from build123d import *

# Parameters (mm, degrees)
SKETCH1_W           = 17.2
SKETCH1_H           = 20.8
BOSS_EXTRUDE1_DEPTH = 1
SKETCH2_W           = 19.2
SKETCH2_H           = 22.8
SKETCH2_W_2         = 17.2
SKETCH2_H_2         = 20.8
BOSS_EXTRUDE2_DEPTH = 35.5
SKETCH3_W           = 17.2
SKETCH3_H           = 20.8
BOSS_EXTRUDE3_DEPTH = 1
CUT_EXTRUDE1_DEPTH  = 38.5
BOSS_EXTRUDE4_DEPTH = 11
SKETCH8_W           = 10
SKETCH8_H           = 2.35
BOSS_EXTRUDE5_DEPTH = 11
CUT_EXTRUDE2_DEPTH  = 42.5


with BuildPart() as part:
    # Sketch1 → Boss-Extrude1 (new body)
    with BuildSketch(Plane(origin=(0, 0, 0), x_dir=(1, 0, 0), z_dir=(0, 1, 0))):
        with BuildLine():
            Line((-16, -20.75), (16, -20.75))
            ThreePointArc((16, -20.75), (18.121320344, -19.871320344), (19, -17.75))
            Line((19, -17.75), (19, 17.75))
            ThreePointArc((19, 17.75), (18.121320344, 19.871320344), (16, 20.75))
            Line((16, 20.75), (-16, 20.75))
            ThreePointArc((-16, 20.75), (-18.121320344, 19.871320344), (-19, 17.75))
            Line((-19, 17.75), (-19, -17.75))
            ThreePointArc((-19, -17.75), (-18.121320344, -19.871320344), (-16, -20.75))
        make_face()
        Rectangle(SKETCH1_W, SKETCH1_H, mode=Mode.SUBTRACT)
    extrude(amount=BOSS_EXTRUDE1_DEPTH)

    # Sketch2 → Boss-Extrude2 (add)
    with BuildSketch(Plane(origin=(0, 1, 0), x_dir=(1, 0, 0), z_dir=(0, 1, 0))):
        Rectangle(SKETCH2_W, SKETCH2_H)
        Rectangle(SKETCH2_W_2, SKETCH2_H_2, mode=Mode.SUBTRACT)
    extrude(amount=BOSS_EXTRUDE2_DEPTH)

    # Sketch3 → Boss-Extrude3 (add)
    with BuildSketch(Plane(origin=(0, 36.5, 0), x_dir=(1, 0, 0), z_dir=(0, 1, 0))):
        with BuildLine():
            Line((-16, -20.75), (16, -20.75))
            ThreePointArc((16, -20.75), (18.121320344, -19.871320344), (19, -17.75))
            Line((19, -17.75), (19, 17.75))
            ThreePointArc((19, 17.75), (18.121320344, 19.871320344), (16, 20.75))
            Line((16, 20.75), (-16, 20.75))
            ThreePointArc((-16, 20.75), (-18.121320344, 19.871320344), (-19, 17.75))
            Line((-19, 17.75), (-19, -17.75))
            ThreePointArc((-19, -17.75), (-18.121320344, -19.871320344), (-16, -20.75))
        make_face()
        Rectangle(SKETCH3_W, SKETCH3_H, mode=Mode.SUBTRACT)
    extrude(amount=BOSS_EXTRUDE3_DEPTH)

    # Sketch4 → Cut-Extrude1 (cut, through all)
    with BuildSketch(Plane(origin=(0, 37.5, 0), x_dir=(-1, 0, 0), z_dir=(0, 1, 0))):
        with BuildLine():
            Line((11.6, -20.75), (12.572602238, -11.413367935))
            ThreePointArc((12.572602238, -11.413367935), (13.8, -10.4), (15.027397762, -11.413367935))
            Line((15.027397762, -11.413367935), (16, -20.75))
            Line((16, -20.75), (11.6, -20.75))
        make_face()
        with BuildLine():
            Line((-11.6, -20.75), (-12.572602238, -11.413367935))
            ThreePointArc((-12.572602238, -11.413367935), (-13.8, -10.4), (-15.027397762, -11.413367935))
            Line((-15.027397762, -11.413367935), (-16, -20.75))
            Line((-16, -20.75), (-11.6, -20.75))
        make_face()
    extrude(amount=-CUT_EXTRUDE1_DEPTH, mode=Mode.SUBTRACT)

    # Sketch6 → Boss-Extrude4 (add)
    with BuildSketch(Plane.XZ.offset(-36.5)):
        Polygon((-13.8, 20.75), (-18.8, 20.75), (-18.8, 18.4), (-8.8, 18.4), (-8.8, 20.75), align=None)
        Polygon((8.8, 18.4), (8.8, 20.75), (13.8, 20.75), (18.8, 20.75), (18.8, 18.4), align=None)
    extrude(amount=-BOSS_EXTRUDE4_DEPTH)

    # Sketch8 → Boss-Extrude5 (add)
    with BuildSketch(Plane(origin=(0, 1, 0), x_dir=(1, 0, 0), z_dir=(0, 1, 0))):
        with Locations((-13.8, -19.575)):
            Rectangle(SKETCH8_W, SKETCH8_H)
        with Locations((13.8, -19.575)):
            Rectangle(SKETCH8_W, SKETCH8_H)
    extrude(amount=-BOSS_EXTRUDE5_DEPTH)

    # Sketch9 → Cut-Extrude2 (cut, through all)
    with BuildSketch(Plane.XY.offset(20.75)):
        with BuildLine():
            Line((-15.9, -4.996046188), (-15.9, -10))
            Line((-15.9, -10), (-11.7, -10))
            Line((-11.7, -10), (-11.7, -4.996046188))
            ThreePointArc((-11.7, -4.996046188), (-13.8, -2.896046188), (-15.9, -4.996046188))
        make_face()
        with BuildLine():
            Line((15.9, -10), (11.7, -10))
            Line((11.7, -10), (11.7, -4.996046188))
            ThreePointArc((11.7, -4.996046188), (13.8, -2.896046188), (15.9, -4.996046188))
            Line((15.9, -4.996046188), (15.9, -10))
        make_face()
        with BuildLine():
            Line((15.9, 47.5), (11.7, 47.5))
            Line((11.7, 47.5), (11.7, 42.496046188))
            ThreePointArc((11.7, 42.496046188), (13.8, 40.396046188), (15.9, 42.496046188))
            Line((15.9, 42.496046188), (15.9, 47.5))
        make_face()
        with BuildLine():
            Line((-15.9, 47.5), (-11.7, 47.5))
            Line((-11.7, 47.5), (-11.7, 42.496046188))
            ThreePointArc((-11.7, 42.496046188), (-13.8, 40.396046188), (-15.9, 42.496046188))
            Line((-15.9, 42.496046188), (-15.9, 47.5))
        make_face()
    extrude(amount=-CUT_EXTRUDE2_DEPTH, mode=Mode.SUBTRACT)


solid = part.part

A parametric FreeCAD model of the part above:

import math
import FreeCAD as App
import Part
import Sketcher
Q = App.Units.Quantity


def add_polygon(sketch, points):
    """Adds a closed chain of lines whose ends are joined by coincident constraints."""
    first, n = sketch.GeometryCount, len(points)
    for a, b in zip(points, points[1:] + points[:1]):
        sketch.addGeometry(Part.LineSegment(App.Vector(*a, 0), App.Vector(*b, 0)), False)
    for i in range(n):
        sketch.addConstraint(Sketcher.Constraint("Coincident", first + i, 2, first + (i + 1) % n, 1))

doc = App.newDocument("Part")
body = doc.addObject("PartDesign::Body", "Body")

# Sketch on XZ plane
sketch1 = body.newObject("Sketcher::SketchObject", "Sketch")
sketch1.AttachmentSupport = (doc.getObject("XZ_Plane"), [""])
sketch1.MapMode = "FlatFace"
sketch1.addGeometry(Part.LineSegment(App.Vector(-16, 20.8, 0), App.Vector(16, 20.8, 0)), False)  # 0
sketch1.addGeometry(Part.ArcOfCircle(Part.Circle(App.Vector(16, 17.8, 0), App.Vector(0, 0, 1), 3), math.radians(0), math.radians(90)), False)  # 1
sketch1.addGeometry(Part.LineSegment(App.Vector(19, 17.8, 0), App.Vector(19, -17.8, 0)), False)  # 2
sketch1.addGeometry(Part.ArcOfCircle(Part.Circle(App.Vector(16, -17.8, 0), App.Vector(0, 0, 1), 3), math.radians(-90), math.radians(0)), False)  # 3
sketch1.addGeometry(Part.LineSegment(App.Vector(16, -20.8, 0), App.Vector(-16, -20.8, 0)), False)  # 4
sketch1.addGeometry(Part.ArcOfCircle(Part.Circle(App.Vector(-16, -17.8, 0), App.Vector(0, 0, 1), 3), math.radians(180), math.radians(270)), False)  # 5
sketch1.addGeometry(Part.LineSegment(App.Vector(-19, -17.8, 0), App.Vector(-19, 17.8, 0)), False)  # 6
sketch1.addGeometry(Part.ArcOfCircle(Part.Circle(App.Vector(-16, 17.8, 0), App.Vector(0, 0, 1), 3), math.radians(90), math.radians(180)), False)  # 7
add_polygon(sketch1, [(8.6, 10.4), (-8.6, 10.4), (-8.6, -10.4), (8.6, -10.4)])  # lines 8-11
sketch1.addConstraint([
    Sketcher.Constraint("Tangent", 0, 2, 1, 2),
    Sketcher.Constraint("Tangent", 1, 1, 2, 1),
    Sketcher.Constraint("Tangent", 2, 2, 3, 2),
    Sketcher.Constraint("Tangent", 3, 1, 4, 1),
    Sketcher.Constraint("Tangent", 4, 2, 5, 2),
    Sketcher.Constraint("Tangent", 5, 1, 6, 1),
    Sketcher.Constraint("Tangent", 6, 2, 7, 2),
    Sketcher.Constraint("Tangent", 7, 1, 0, 1),
    Sketcher.Constraint("Horizontal", 0),
    Sketcher.Constraint("Vertical", 2),
    Sketcher.Constraint("Horizontal", 4),
    Sketcher.Constraint("Vertical", 6),
    Sketcher.Constraint("Horizontal", 8),
    Sketcher.Constraint("Vertical", 9),
    Sketcher.Constraint("Horizontal", 10),
    Sketcher.Constraint("Vertical", 11),
    Sketcher.Constraint("Equal", 1, 3),
    Sketcher.Constraint("Equal", 3, 5),
    Sketcher.Constraint("Equal", 5, 7),
    Sketcher.Constraint("Symmetric", 1, 3, 5, 3, -1, 1),
    Sketcher.Constraint("Symmetric", 8, 2, 10, 2, -1, 1),
    Sketcher.Constraint("Radius", 1, Q("3 mm")),
    Sketcher.Constraint("DistanceX", 0, 1, 0, 2, Q("32 mm")),
    Sketcher.Constraint("DistanceX", 8, 2, 8, 1, Q("17.2 mm")),
    Sketcher.Constraint("DistanceY", 2, 2, 2, 1, Q("35.5 mm")),
    Sketcher.Constraint("DistanceY", 9, 2, 9, 1, Q("20.8 mm")),
])
pad1 = body.newObject("PartDesign::Pad", "Pad")
pad1.Profile = sketch1
pad1.Length = 1
pad1.Reversed = True

# Sketch on XZ plane
sketch2 = body.newObject("Sketcher::SketchObject", "Sketch001")
sketch2.AttachmentSupport = (doc.getObject("XZ_Plane"), [""])
sketch2.MapMode = "FlatFace"
sketch2.AttachmentOffset = App.Placement(App.Vector(0, 0, -1), App.Rotation())
add_polygon(sketch2, [(-10, -11), (-10, 11), (10, 11), (10, -11)])  # lines 0-3
add_polygon(sketch2, [(9, 10), (-9, 10), (-9, -10), (9, -10)])  # lines 4-7
sketch2.addConstraint([
    Sketcher.Constraint("Vertical", 0),
    Sketcher.Constraint("Horizontal", 1),
    Sketcher.Constraint("Vertical", 2),
    Sketcher.Constraint("Horizontal", 3),
    Sketcher.Constraint("Horizontal", 4),
    Sketcher.Constraint("Vertical", 5),
    Sketcher.Constraint("Horizontal", 6),
    Sketcher.Constraint("Vertical", 7),
    Sketcher.Constraint("Symmetric", 0, 2, 2, 2, -1, 1),
    Sketcher.Constraint("Symmetric", 4, 2, 6, 2, -1, 1),
    Sketcher.Constraint("DistanceX", 1, 1, 1, 2, Q("19.2 mm")),
    Sketcher.Constraint("DistanceX", 4, 2, 4, 1, Q("17.2 mm")),
    Sketcher.Constraint("DistanceY", 0, 1, 0, 2, Q("22.8 mm")),
    Sketcher.Constraint("DistanceY", 5, 2, 5, 1, Q("20.8 mm")),
])
pad2 = body.newObject("PartDesign::Pad", "Pad001")
pad2.Profile = sketch2
pad2.Length = 35.5
pad2.Reversed = True

# Sketch on XZ plane
sketch3 = body.newObject("Sketcher::SketchObject", "Sketch002")
sketch3.AttachmentSupport = (doc.getObject("XZ_Plane"), [""])
sketch3.MapMode = "FlatFace"
sketch3.AttachmentOffset = App.Placement(App.Vector(0, 0, -36.5), App.Rotation())
sketch3.addGeometry(Part.LineSegment(App.Vector(-16, 20.8, 0), App.Vector(16, 20.8, 0)), False)  # 0
sketch3.addGeometry(Part.ArcOfCircle(Part.Circle(App.Vector(16, 17.8, 0), App.Vector(0, 0, 1), 3), math.radians(0), math.radians(90)), False)  # 1
sketch3.addGeometry(Part.LineSegment(App.Vector(19, 17.8, 0), App.Vector(19, -17.8, 0)), False)  # 2
sketch3.addGeometry(Part.ArcOfCircle(Part.Circle(App.Vector(16, -17.8, 0), App.Vector(0, 0, 1), 3), math.radians(-90), math.radians(0)), False)  # 3
sketch3.addGeometry(Part.LineSegment(App.Vector(16, -20.8, 0), App.Vector(-16, -20.8, 0)), False)  # 4
sketch3.addGeometry(Part.ArcOfCircle(Part.Circle(App.Vector(-16, -17.8, 0), App.Vector(0, 0, 1), 3), math.radians(180), math.radians(270)), False)  # 5
sketch3.addGeometry(Part.LineSegment(App.Vector(-19, -17.8, 0), App.Vector(-19, 17.8, 0)), False)  # 6
sketch3.addGeometry(Part.ArcOfCircle(Part.Circle(App.Vector(-16, 17.8, 0), App.Vector(0, 0, 1), 3), math.radians(90), math.radians(180)), False)  # 7
add_polygon(sketch3, [(8.6, 10.4), (-8.6, 10.4), (-8.6, -10.4), (8.6, -10.4)])  # lines 8-11
sketch3.addConstraint([
    Sketcher.Constraint("Tangent", 0, 2, 1, 2),
    Sketcher.Constraint("Tangent", 1, 1, 2, 1),
    Sketcher.Constraint("Tangent", 2, 2, 3, 2),
    Sketcher.Constraint("Tangent", 3, 1, 4, 1),
    Sketcher.Constraint("Tangent", 4, 2, 5, 2),
    Sketcher.Constraint("Tangent", 5, 1, 6, 1),
    Sketcher.Constraint("Tangent", 6, 2, 7, 2),
    Sketcher.Constraint("Tangent", 7, 1, 0, 1),
    Sketcher.Constraint("Horizontal", 0),
    Sketcher.Constraint("Vertical", 2),
    Sketcher.Constraint("Horizontal", 4),
    Sketcher.Constraint("Vertical", 6),
    Sketcher.Constraint("Horizontal", 8),
    Sketcher.Constraint("Vertical", 9),
    Sketcher.Constraint("Horizontal", 10),
    Sketcher.Constraint("Vertical", 11),
    Sketcher.Constraint("Equal", 1, 3),
    Sketcher.Constraint("Equal", 3, 5),
    Sketcher.Constraint("Equal", 5, 7),
    Sketcher.Constraint("Symmetric", 1, 3, 5, 3, -1, 1),
    Sketcher.Constraint("Symmetric", 8, 2, 10, 2, -1, 1),
    Sketcher.Constraint("Radius", 1, Q("3 mm")),
    Sketcher.Constraint("DistanceX", 0, 1, 0, 2, Q("32 mm")),
    Sketcher.Constraint("DistanceX", 8, 2, 8, 1, Q("17.2 mm")),
    Sketcher.Constraint("DistanceY", 2, 2, 2, 1, Q("35.5 mm")),
    Sketcher.Constraint("DistanceY", 9, 2, 9, 1, Q("20.8 mm")),
])
pad3 = body.newObject("PartDesign::Pad", "Pad002")
pad3.Profile = sketch3
pad3.Length = 1
pad3.Reversed = True

# Sketch on XZ plane
sketch4 = body.newObject("Sketcher::SketchObject", "Sketch003")
sketch4.AttachmentSupport = (doc.getObject("XZ_Plane"), [""])
sketch4.MapMode = "FlatFace"
sketch4.AttachmentOffset = App.Placement(App.Vector(0, 0, -37.5), App.Rotation())
sketch4.addGeometry([
    Part.LineSegment(App.Vector(-12.6, -11.4, 0), App.Vector(-11.6, -20.8, 0)),  # 0
    Part.LineSegment(App.Vector(-11.6, -20.8, 0), App.Vector(-16, -20.8, 0)),  # 1
    Part.LineSegment(App.Vector(-16, -20.8, 0), App.Vector(-15, -11.4, 0)),  # 2
    Part.ArcOfCircle(Part.Circle(App.Vector(-13.8, -11.7, 0), App.Vector(0, 0, 1), 1.2), math.radians(11), math.radians(169)),  # 3
    Part.LineSegment(App.Vector(11.6, -20.8, 0), App.Vector(12.6, -11.4, 0)),  # 4
    Part.ArcOfCircle(Part.Circle(App.Vector(13.8, -11.7, 0), App.Vector(0, 0, 1), 1.2), math.radians(11), math.radians(169)),  # 5
    Part.LineSegment(App.Vector(15, -11.4, 0), App.Vector(16, -20.8, 0)),  # 6
    Part.LineSegment(App.Vector(16, -20.8, 0), App.Vector(11.6, -20.8, 0)),  # 7
], False)
sketch4.addConstraint([
    Sketcher.Constraint("Coincident", 0, 2, 1, 1),
    Sketcher.Constraint("Coincident", 1, 2, 2, 1),
    Sketcher.Constraint("Coincident", 2, 2, 3, 2),
    Sketcher.Constraint("Coincident", 3, 1, 0, 1),
    Sketcher.Constraint("Coincident", 4, 2, 5, 2),
    Sketcher.Constraint("Coincident", 5, 1, 6, 1),
    Sketcher.Constraint("Coincident", 6, 2, 7, 1),
    Sketcher.Constraint("Coincident", 7, 2, 4, 1),
    Sketcher.Constraint("Horizontal", 1),
    Sketcher.Constraint("Horizontal", 7),
    Sketcher.Constraint("Equal", 3, 5),
    Sketcher.Constraint("Symmetric", 3, 3, 5, 3, -2),
    Sketcher.Constraint("Symmetric", 1, 2, 6, 2, -2),
    Sketcher.Constraint("Parallel", 2, 4),
    Sketcher.Constraint("Parallel", 0, 6),
    Sketcher.Constraint("Horizontal", 2, 2, 3, 1),
    Sketcher.Constraint("Horizontal", 3, 1, 4, 2),
    Sketcher.Constraint("Horizontal", 4, 2, 5, 1),
    Sketcher.Constraint("Radius", 3, Q("1.25 mm")),
    Sketcher.Constraint("DistanceX", 1, 2, 1, 1, Q("4.4 mm")),
    Sketcher.Constraint("DistanceX", 1, 2, -1, 1, Q("16 mm")),
    Sketcher.Constraint("DistanceY", 0, 2, 3, 3, Q("9.1 mm")),
    Sketcher.Constraint("DistanceY", 3, 3, -1, 1, Q("11.65 mm")),
    Sketcher.Constraint("Distance", 0, Q("9.387154 mm")),
])
pocket1 = body.newObject("PartDesign::Pocket", "Pocket")
pocket1.Profile = sketch4
pocket1.Type = "ThroughAll"
pocket1.Reversed = True

# Sketch on XZ plane
sketch5 = body.newObject("Sketcher::SketchObject", "Sketch004")
sketch5.AttachmentSupport = (doc.getObject("XZ_Plane"), [""])
sketch5.MapMode = "FlatFace"
sketch5.AttachmentOffset = App.Placement(App.Vector(0, 0, -36.5), App.Rotation())
add_polygon(sketch5, [(-18.8, 20.8), (-18.8, 18.4), (-8.8, 18.4), (-8.8, 20.8)])  # lines 0-3
add_polygon(sketch5, [(8.8, 20.8), (8.8, 18.4), (18.8, 18.4), (18.8, 20.8)])  # lines 4-7
sketch5.addConstraint([
    Sketcher.Constraint("Vertical", 0),
    Sketcher.Constraint("Horizontal", 1),
    Sketcher.Constraint("Vertical", 2),
    Sketcher.Constraint("Horizontal", 3),
    Sketcher.Constraint("Vertical", 4),
    Sketcher.Constraint("Horizontal", 5),
    Sketcher.Constraint("Vertical", 6),
    Sketcher.Constraint("Horizontal", 7),
    Sketcher.Constraint("Symmetric", 1, 2, 4, 2, -2),
    Sketcher.Constraint("Symmetric", 3, 2, 6, 2, -2),
    Sketcher.Constraint("DistanceX", 1, 1, 1, 2, Q("10 mm")),
    Sketcher.Constraint("DistanceY", 0, 2, 0, 1, Q("2.35 mm")),
    Sketcher.Constraint("DistanceX", 0, 2, -1, 1, Q("18.8 mm")),
    Sketcher.Constraint("DistanceY", -1, 1, 0, 2, Q("18.4 mm")),
])
pad4 = body.newObject("PartDesign::Pad", "Pad003")
pad4.Profile = sketch5
pad4.Length = 11
pad4.Reversed = True

# Sketch on XZ plane
sketch6 = body.newObject("Sketcher::SketchObject", "Sketch005")
sketch6.AttachmentSupport = (doc.getObject("XZ_Plane"), [""])
sketch6.MapMode = "FlatFace"
sketch6.AttachmentOffset = App.Placement(App.Vector(0, 0, -1), App.Rotation())
add_polygon(sketch6, [(-18.8, 18.4), (-18.8, 20.8), (-8.8, 20.8), (-8.8, 18.4)])  # lines 0-3
add_polygon(sketch6, [(8.8, 18.4), (8.8, 20.8), (18.8, 20.8), (18.8, 18.4)])  # lines 4-7
sketch6.addConstraint([
    Sketcher.Constraint("Vertical", 0),
    Sketcher.Constraint("Horizontal", 1),
    Sketcher.Constraint("Vertical", 2),
    Sketcher.Constraint("Horizontal", 3),
    Sketcher.Constraint("Vertical", 4),
    Sketcher.Constraint("Horizontal", 5),
    Sketcher.Constraint("Vertical", 6),
    Sketcher.Constraint("Horizontal", 7),
    Sketcher.Constraint("Symmetric", 1, 2, 4, 2, -2),
    Sketcher.Constraint("Symmetric", 3, 2, 6, 2, -2),
    Sketcher.Constraint("DistanceX", 1, 1, 1, 2, Q("10 mm")),
    Sketcher.Constraint("DistanceY", 0, 1, 0, 2, Q("2.35 mm")),
    Sketcher.Constraint("DistanceX", 0, 2, -1, 1, Q("18.8 mm")),
    Sketcher.Constraint("DistanceY", -1, 1, 2, 2, Q("18.4 mm")),
])
pad5 = body.newObject("PartDesign::Pad", "Pad004")
pad5.Profile = sketch6
pad5.Length = 11

# Sketch on XY plane
sketch7 = body.newObject("Sketcher::SketchObject", "Sketch006")
sketch7.AttachmentSupport = (doc.getObject("XY_Plane"), [""])
sketch7.MapMode = "FlatFace"
sketch7.AttachmentOffset = App.Placement(App.Vector(0, 0, 20.75), App.Rotation())
sketch7.addGeometry([
    Part.LineSegment(App.Vector(-15.9, -5, 0), App.Vector(-15.9, -10, 0)),  # 0
    Part.LineSegment(App.Vector(-15.9, -10, 0), App.Vector(-11.7, -10, 0)),  # 1
    Part.LineSegment(App.Vector(-11.7, -10, 0), App.Vector(-11.7, -5, 0)),  # 2
    Part.ArcOfCircle(Part.Circle(App.Vector(-13.8, -5, 0), App.Vector(0, 0, 1), 2.1), math.radians(0), math.radians(180)),  # 3
    Part.LineSegment(App.Vector(11.7, -10, 0), App.Vector(15.9, -10, 0)),  # 4
    Part.LineSegment(App.Vector(15.9, -10, 0), App.Vector(15.9, -5, 0)),  # 5
    Part.ArcOfCircle(Part.Circle(App.Vector(13.8, -5, 0), App.Vector(0, 0, 1), 2.1), math.radians(0), math.radians(180)),  # 6
    Part.LineSegment(App.Vector(11.7, -5, 0), App.Vector(11.7, -10, 0)),  # 7
    Part.LineSegment(App.Vector(15.9, 47.5, 0), App.Vector(11.7, 47.5, 0)),  # 8
    Part.LineSegment(App.Vector(11.7, 47.5, 0), App.Vector(11.7, 42.5, 0)),  # 9
    Part.ArcOfCircle(Part.Circle(App.Vector(13.8, 42.5, 0), App.Vector(0, 0, 1), 2.1), math.radians(180), math.radians(360)),  # 10
    Part.LineSegment(App.Vector(15.9, 42.5, 0), App.Vector(15.9, 47.5, 0)),  # 11
    Part.LineSegment(App.Vector(-11.7, 47.5, 0), App.Vector(-15.9, 47.5, 0)),  # 12
    Part.LineSegment(App.Vector(-15.9, 47.5, 0), App.Vector(-15.9, 42.5, 0)),  # 13
    Part.ArcOfCircle(Part.Circle(App.Vector(-13.8, 42.5, 0), App.Vector(0, 0, 1), 2.1), math.radians(180), math.radians(360)),  # 14
    Part.LineSegment(App.Vector(-11.7, 42.5, 0), App.Vector(-11.7, 47.5, 0)),  # 15
], False)
sketch7.addConstraint([
    Sketcher.Constraint("Coincident", 0, 2, 1, 1),
    Sketcher.Constraint("Coincident", 1, 2, 2, 1),
    Sketcher.Constraint("Tangent", 2, 2, 3, 1),
    Sketcher.Constraint("Tangent", 3, 2, 0, 1),
    Sketcher.Constraint("Coincident", 4, 2, 5, 1),
    Sketcher.Constraint("Tangent", 5, 2, 6, 1),
    Sketcher.Constraint("Tangent", 6, 2, 7, 1),
    Sketcher.Constraint("Coincident", 7, 2, 4, 1),
    Sketcher.Constraint("Coincident", 8, 2, 9, 1),
    Sketcher.Constraint("Tangent", 9, 2, 10, 1),
    Sketcher.Constraint("Tangent", 10, 2, 11, 1),
    Sketcher.Constraint("Coincident", 11, 2, 8, 1),
    Sketcher.Constraint("Coincident", 12, 2, 13, 1),
    Sketcher.Constraint("Tangent", 13, 2, 14, 1),
    Sketcher.Constraint("Tangent", 14, 2, 15, 1),
    Sketcher.Constraint("Coincident", 15, 2, 12, 1),
    Sketcher.Constraint("Vertical", 0),
    Sketcher.Constraint("Horizontal", 1),
    Sketcher.Constraint("Vertical", 2),
    Sketcher.Constraint("Horizontal", 4),
    Sketcher.Constraint("Vertical", 5),
    Sketcher.Constraint("Vertical", 7),
    Sketcher.Constraint("Horizontal", 8),
    Sketcher.Constraint("Vertical", 9),
    Sketcher.Constraint("Vertical", 11),
    Sketcher.Constraint("Horizontal", 12),
    Sketcher.Constraint("Vertical", 13),
    Sketcher.Constraint("Vertical", 15),
    Sketcher.Constraint("Equal", 3, 6),
    Sketcher.Constraint("Equal", 6, 10),
    Sketcher.Constraint("Equal", 10, 14),
    Sketcher.Constraint("Symmetric", 3, 3, 6, 3, -2),
    Sketcher.Constraint("Symmetric", 10, 3, 14, 3, -2),
    Sketcher.Constraint("Horizontal", 1, 2, 4, 2),
    Sketcher.Constraint("Horizontal", 11, 2, 12, 2),
    Sketcher.Constraint("Vertical", 6, 3, 10, 3),
    Sketcher.Constraint("Equal", 7, 9),
    Sketcher.Constraint("Radius", 3, Q("2.1 mm")),
    Sketcher.Constraint("DistanceY", 0, 2, -1, 1, Q("10 mm")),
    Sketcher.Constraint("DistanceX", 3, 3, -1, 1, Q("13.8 mm")),
    Sketcher.Constraint("DistanceY", -1, 1, 8, 2, Q("47.5 mm")),
    Sketcher.Constraint("DistanceY", 0, 2, 0, 1, Q("5.003954 mm")),
])
pocket2 = body.newObject("PartDesign::Pocket", "Pocket001")
pocket2.Profile = sketch7
pocket2.Type = "ThroughAll"

doc.recompute()
